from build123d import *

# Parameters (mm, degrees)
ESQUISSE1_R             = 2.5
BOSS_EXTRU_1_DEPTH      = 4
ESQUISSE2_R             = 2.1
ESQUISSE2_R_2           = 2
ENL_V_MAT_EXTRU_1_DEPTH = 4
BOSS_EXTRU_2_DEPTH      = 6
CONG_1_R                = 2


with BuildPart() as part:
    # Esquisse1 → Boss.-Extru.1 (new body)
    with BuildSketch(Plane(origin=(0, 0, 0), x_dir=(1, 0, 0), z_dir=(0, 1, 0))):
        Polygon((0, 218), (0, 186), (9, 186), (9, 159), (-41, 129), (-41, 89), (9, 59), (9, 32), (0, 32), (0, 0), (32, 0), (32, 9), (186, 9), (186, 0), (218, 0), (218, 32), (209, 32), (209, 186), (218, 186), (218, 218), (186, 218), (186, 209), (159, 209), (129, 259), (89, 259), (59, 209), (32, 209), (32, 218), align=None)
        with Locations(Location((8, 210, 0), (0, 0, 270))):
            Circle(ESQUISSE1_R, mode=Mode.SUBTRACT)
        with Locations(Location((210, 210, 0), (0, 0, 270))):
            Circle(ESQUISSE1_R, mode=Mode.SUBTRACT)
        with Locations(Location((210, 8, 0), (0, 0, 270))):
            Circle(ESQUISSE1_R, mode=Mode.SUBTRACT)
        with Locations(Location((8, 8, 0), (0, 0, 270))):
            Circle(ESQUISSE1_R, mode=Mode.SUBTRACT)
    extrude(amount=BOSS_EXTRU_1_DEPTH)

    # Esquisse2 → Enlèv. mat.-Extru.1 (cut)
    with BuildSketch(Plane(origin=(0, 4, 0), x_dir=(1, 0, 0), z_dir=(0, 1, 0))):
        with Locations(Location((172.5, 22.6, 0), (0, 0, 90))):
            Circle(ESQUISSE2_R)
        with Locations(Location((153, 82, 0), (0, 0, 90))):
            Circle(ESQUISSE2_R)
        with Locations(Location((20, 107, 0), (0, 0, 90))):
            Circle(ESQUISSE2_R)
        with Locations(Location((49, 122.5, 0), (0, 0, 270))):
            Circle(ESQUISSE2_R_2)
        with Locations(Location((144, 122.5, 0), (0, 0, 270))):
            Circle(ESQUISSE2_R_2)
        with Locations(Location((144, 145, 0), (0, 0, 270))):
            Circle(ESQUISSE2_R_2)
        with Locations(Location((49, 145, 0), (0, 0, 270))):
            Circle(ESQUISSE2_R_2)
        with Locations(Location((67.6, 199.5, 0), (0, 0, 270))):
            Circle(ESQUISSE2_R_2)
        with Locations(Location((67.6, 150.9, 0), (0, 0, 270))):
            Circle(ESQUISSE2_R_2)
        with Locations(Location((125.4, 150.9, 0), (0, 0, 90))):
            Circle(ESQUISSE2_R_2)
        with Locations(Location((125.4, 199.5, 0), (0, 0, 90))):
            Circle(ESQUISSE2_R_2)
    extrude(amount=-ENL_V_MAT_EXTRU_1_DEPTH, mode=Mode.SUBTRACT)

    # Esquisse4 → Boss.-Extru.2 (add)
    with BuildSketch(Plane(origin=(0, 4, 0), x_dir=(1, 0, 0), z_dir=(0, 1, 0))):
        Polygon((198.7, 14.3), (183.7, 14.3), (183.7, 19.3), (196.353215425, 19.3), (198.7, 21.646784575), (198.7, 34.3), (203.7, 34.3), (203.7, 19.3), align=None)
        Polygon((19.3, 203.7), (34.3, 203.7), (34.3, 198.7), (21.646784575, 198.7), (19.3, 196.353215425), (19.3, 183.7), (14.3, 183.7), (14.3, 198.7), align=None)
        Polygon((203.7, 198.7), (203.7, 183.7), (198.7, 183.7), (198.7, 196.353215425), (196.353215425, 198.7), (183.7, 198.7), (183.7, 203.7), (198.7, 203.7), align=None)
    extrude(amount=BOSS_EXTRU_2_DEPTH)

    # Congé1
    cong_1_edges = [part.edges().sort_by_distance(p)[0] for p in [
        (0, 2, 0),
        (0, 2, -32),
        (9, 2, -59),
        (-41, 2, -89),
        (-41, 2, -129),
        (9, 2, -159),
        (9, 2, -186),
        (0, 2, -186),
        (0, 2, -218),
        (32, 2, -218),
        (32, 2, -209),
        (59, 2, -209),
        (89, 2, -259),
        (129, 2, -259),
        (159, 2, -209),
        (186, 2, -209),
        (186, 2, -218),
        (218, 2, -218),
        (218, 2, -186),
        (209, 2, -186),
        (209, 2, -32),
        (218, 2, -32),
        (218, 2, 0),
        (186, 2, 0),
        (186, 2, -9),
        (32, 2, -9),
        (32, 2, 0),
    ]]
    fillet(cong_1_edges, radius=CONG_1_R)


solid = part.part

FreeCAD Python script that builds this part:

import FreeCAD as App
import Part
import Sketcher


def edges_at(feature, points):
    """Names of the edges that pass closest to the given points."""
    edges = feature.Shape.Edges
    near = lambda p: min(range(len(edges)), key=lambda i: edges[i].distToShape(Part.Vertex(*p))[0])
    return sorted({f"Edge{near(p) + 1}" for p in points})

doc = App.newDocument("Part")
body = doc.addObject("PartDesign::Body", "Body")

sketch1 = doc.addObject("Sketcher::SketchObject", "Sketch")
body.addObject(sketch1)
sketch1.AttachmentSupport = (doc.XZ_Plane, [""])
sketch1.MapMode = "FlatFace"
sketch1.addGeometry(Part.LineSegment(App.Vector(0, -218, 0), App.Vector(0, -186, 0)), False)
sketch1.addGeometry(Part.LineSegment(App.Vector(0, -186, 0), App.Vector(9, -186, 0)), False)
sketch1.addGeometry(Part.LineSegment(App.Vector(9, -186, 0), App.Vector(9, -159, 0)), False)
sketch1.addGeometry(Part.LineSegment(App.Vector(9, -159, 0), App.Vector(-41, -129, 0)), False)
sketch1.addGeometry(Part.LineSegment(App.Vector(-41, -129, 0), App.Vector(-41, -89, 0)), False)
sketch1.addGeometry(Part.LineSegment(App.Vector(-41, -89, 0), App.Vector(9, -59, 0)), False)
sketch1.addGeometry(Part.LineSegment(App.Vector(9, -59, 0), App.Vector(9, -32, 0)), False)
sketch1.addGeometry(Part.LineSegment(App.Vector(9, -32, 0), App.Vector(0, -32, 0)), False)
sketch1.addGeometry(Part.LineSegment(App.Vector(0, -32, 0), App.Vector(0, 0, 0)), False)
sketch1.addGeometry(Part.LineSegment(App.Vector(0, 0, 0), App.Vector(32, 0, 0)), False)
sketch1.addGeometry(Part.LineSegment(App.Vector(32, 0, 0), App.Vector(32, -9, 0)), False)
sketch1.addGeometry(Part.LineSegment(App.Vector(32, -9, 0), App.Vector(186, -9, 0)), False)
sketch1.addGeometry(Part.LineSegment(App.Vector(186, -9, 0), App.Vector(186, 0, 0)), False)
sketch1.addGeometry(Part.LineSegment(App.Vector(186, 0, 0), App.Vector(218, 0, 0)), False)
sketch1.addGeometry(Part.LineSegment(App.Vector(218, 0, 0), App.Vector(218, -32, 0)), False)
sketch1.addGeometry(Part.LineSegment(App.Vector(218, -32, 0), App.Vector(209, -32, 0)), False)
sketch1.addGeometry(Part.LineSegment(App.Vector(209, -32, 0), App.Vector(209, -186, 0)), False)
sketch1.addGeometry(Part.LineSegment(App.Vector(209, -186, 0), App.Vector(218, -186, 0)), False)
sketch1.addGeometry(Part.LineSegment(App.Vector(218, -186, 0), App.Vector(218, -218, 0)), False)
sketch1.addGeometry(Part.LineSegment(App.Vector(218, -218, 0), App.Vector(186, -218, 0)), False)
sketch1.addGeometry(Part.LineSegment(App.Vector(186, -218, 0), App.Vector(186, -209, 0)), False)
sketch1.addGeometry(Part.LineSegment(App.Vector(186, -209, 0), App.Vector(159, -209, 0)), False)
sketch1.addGeometry(Part.LineSegment(App.Vector(159, -209, 0), App.Vector(129, -259, 0)), False)
sketch1.addGeometry(Part.LineSegment(App.Vector(129, -259, 0), App.Vector(89, -259, 0)), False)
sketch1.addGeometry(Part.LineSegment(App.Vector(89, -259, 0), App.Vector(59, -209, 0)), False)
sketch1.addGeometry(Part.LineSegment(App.Vector(59, -209, 0), App.Vector(32, -209, 0)), False)
sketch1.addGeometry(Part.LineSegment(App.Vector(32, -209, 0), App.Vector(32, -218, 0)), False)
sketch1.addGeometry(Part.LineSegment(App.Vector(32, -218, 0), App.Vector(0, -218, 0)), False)
sketch1.addGeometry(Part.Circle(App.Vector(8, -8, 0), App.Vector(0, 0, 1), 2.5), False)
sketch1.addGeometry(Part.Circle(App.Vector(210, -8, 0), App.Vector(0, 0, 1), 2.5), False)
sketch1.addGeometry(Part.Circle(App.Vector(8, -210, 0), App.Vector(0, 0, 1), 2.5), False)
sketch1.addGeometry(Part.Circle(App.Vector(210, -210, 0), App.Vector(0, 0, 1), 2.5), False)
sketch1.addConstraint(Sketcher.Constraint("Coincident", 0, 2, 1, 1))
sketch1.addConstraint(Sketcher.Constraint("Coincident", 1, 2, 2, 1))
sketch1.addConstraint(Sketcher.Constraint("Coincident", 2, 2, 3, 1))
sketch1.addConstraint(Sketcher.Constraint("Coincident", 3, 2, 4, 1))
sketch1.addConstraint(Sketcher.Constraint("Coincident", 4, 2, 5, 1))
sketch1.addConstraint(Sketcher.Constraint("Coincident", 5, 2, 6, 1))
sketch1.addConstraint(Sketcher.Constraint("Coincident", 6, 2, 7, 1))
sketch1.addConstraint(Sketcher.Constraint("Coincident", 7, 2, 8, 1))
sketch1.addConstraint(Sketcher.Constraint("Coincident", 8, 2, 9, 1))
sketch1.addConstraint(Sketcher.Constraint("Coincident", 9, 2, 10, 1))
sketch1.addConstraint(Sketcher.Constraint("Coincident", 10, 2, 11, 1))
sketch1.addConstraint(Sketcher.Constraint("Coincident", 11, 2, 12, 1))
sketch1.addConstraint(Sketcher.Constraint("Coincident", 12, 2, 13, 1))
sketch1.addConstraint(Sketcher.Constraint("Coincident", 13, 2, 14, 1))
sketch1.addConstraint(Sketcher.Constraint("Coincident", 14, 2, 15, 1))
sketch1.addConstraint(Sketcher.Constraint("Coincident", 15, 2, 16, 1))
sketch1.addConstraint(Sketcher.Constraint("Coincident", 16, 2, 17, 1))
sketch1.addConstraint(Sketcher.Constraint("Coincident", 17, 2, 18, 1))
sketch1.addConstraint(Sketcher.Constraint("Coincident", 18, 2, 19, 1))
sketch1.addConstraint(Sketcher.Constraint("Coincident", 19, 2, 20, 1))
sketch1.addConstraint(Sketcher.Constraint("Coincident", 20, 2, 21, 1))
sketch1.addConstraint(Sketcher.Constraint("Coincident", 21, 2, 22, 1))
sketch1.addConstraint(Sketcher.Constraint("Coincident", 22, 2, 23, 1))
sketch1.addConstraint(Sketcher.Constraint("Coincident", 23, 2, 24, 1))
sketch1.addConstraint(Sketcher.Constraint("Coincident", 24, 2, 25, 1))
sketch1.addConstraint(Sketcher.Constraint("Coincident", 25, 2, 26, 1))
sketch1.addConstraint(Sketcher.Constraint("Coincident", 26, 2, 27, 1))
sketch1.addConstraint(Sketcher.Constraint("Coincident", 27, 2, 0, 1))
sketch1.addConstraint(Sketcher.Constraint("Vertical", 0))
sketch1.addConstraint(Sketcher.Constraint("Horizontal", 1))
sketch1.addConstraint(Sketcher.Constraint("Vertical", 2))
sketch1.addConstraint(Sketcher.Constraint("Vertical", 4))
sketch1.addConstraint(Sketcher.Constraint("Vertical", 6))
sketch1.addConstraint(Sketcher.Constraint("Horizontal", 7))
sketch1.addConstraint(Sketcher.Constraint("Vertical", 8))
sketch1.addConstraint(Sketcher.Constraint("Horizontal", 9))
sketch1.addConstraint(Sketcher.Constraint("Vertical", 10))
sketch1.addConstraint(Sketcher.Constraint("Horizontal", 11))
sketch1.addConstraint(Sketcher.Constraint("Vertical", 12))
sketch1.addConstraint(Sketcher.Constraint("Horizontal", 13))
sketch1.addConstraint(Sketcher.Constraint("Vertical", 14))
sketch1.addConstraint(Sketcher.Constraint("Horizontal", 15))
sketch1.addConstraint(Sketcher.Constraint("Vertical", 16))
sketch1.addConstraint(Sketcher.Constraint("Horizontal", 17))
sketch1.addConstraint(Sketcher.Constraint("Vertical", 18))
sketch1.addConstraint(Sketcher.Constraint("Horizontal", 19))
sketch1.addConstraint(Sketcher.Constraint("Vertical", 20))
sketch1.addConstraint(Sketcher.Constraint("Horizontal", 21))
sketch1.addConstraint(Sketcher.Constraint("Horizontal", 23))
sketch1.addConstraint(Sketcher.Constraint("Horizontal", 25))
sketch1.addConstraint(Sketcher.Constraint("Vertical", 26))
sketch1.addConstraint(Sketcher.Constraint("Horizontal", 27))
sketch1.addConstraint(Sketcher.Constraint("Coincident", 8, 2, -1, 1))
sketch1.addConstraint(Sketcher.Constraint("Equal", 28, 29))
sketch1.addConstraint(Sketcher.Constraint("Equal", 29, 30))
sketch1.addConstraint(Sketcher.Constraint("Equal", 30, 31))
sketch1.addConstraint(Sketcher.Constraint("PointOnObject", 0, 2, -2))
sketch1.addConstraint(Sketcher.Constraint("PointOnObject", 12, 2, -1))
sketch1.addConstraint(Sketcher.Constraint("Perpendicular", 3, 22))
sketch1.addConstraint(Sketcher.Constraint("Perpendicular", 5, 24))
sketch1.addConstraint(Sketcher.Constraint("Horizontal", 28, 3, 29, 3))
sketch1.addConstraint(Sketcher.Constraint("Horizontal", 30, 3, 31, 3))
sketch1.addConstraint(Sketcher.Constraint("Horizontal", 7, 2, 14, 2))
sketch1.addConstraint(Sketcher.Constraint("Horizontal", 1, 2, 16, 2))
sketch1.addConstraint(Sketcher.Constraint("Horizontal", 21, 2, 24, 2))
sketch1.addConstraint(Sketcher.Constraint("Horizontal", 19, 2, 26, 2))
sketch1.addConstraint(Sketcher.Constraint("Vertical", 28, 3, 30, 3))
sketch1.addConstraint(Sketcher.Constraint("Vertical", 29, 3, 31, 3))
sketch1.addConstraint(Sketcher.Constraint("Vertical", 2, 2, 5, 2))
sketch1.addConstraint(Sketcher.Constraint("Vertical", 14, 2, 17, 2))
sketch1.addConstraint(Sketcher.Constraint("Vertical", 12, 2, 19, 2))
sketch1.addConstraint(Sketcher.Constraint("Vertical", 10, 2, 25, 2))
sketch1.addConstraint(Sketcher.Constraint("Equal", 9, 13))
sketch1.addConstraint(Sketcher.Constraint("Equal", 7, 15))
sketch1.addConstraint(Sketcher.Constraint("Equal", 21, 25))
sketch1.addConstraint(Sketcher.Constraint("Equal", 27, 0))
sketch1.addConstraint(Sketcher.Constraint("Equal", 25, 2))
sketch1.addConstraint(Sketcher.Constraint("Equal", 23, 4))
sketch1.addConstraint(Sketcher.Constraint("Equal", 2, 6))
sketch1.addConstraint(Sketcher.Constraint("Equal", 0, 8))
sketch1.addConstraint(Sketcher.Constraint("Equal", 17, 10))
sketch1.addConstraint(Sketcher.Constraint("Equal", 11, 16))
sketch1.addConstraint(Sketcher.Constraint("Equal", 12, 20))
sketch1.addConstraint(Sketcher.Constraint("Equal", 3, 5))
sketch1.addConstraint(Sketcher.Constraint("Diameter", 28, 5.0))
sketch1.addConstraint(Sketcher.Constraint("DistanceX", 1, 1, 1, 2, 9.0))
sketch1.addConstraint(Sketcher.Constraint("DistanceX", 9, 1, 9, 2, 32.0))
sketch1.addConstraint(Sketcher.Constraint("DistanceX", 11, 1, 11, 2, 154.0))
sketch1.addConstraint(Sketcher.Constraint("DistanceX", 21, 2, 21, 1, 27.0))
sketch1.addConstraint(Sketcher.Constraint("DistanceX", 23, 2, 23, 1, 40.0))
sketch1.addConstraint(Sketcher.Constraint("DistanceX", -1, 1, 28, 3, 8.0))
sketch1.addConstraint(Sketcher.Constraint("DistanceY", 28, 3, -1, 1, 8.0))
sketch1.addConstraint(Sketcher.Constraint("DistanceX", -1, 1, 29, 3, 210.0))
sketch1.addConstraint(Sketcher.Constraint("DistanceY", 30, 3, -1, 1, 210.0))
sketch1.addConstraint(Sketcher.Constraint("DistanceX", 3, 2, -1, 1, 41.0))
pad1 = doc.addObject("PartDesign::Pad", "Pad")
body.addObject(pad1)
pad1.Profile = sketch1
pad1.Length = 4
pad1.Reversed = True

sketch2 = doc.addObject("Sketcher::SketchObject", "Sketch001")
body.addObject(sketch2)
sketch2.AttachmentSupport = (doc.XZ_Plane, [""])
sketch2.MapMode = "FlatFace"
sketch2.AttachmentOffset = App.Placement(App.Vector(0, 0, -4), App.Rotation())
sketch2.addGeometry(Part.Circle(App.Vector(172.5, -22.6, 0), App.Vector(0, 0, 1), 2.1), False)
sketch2.addGeometry(Part.Circle(App.Vector(153, -82, 0), App.Vector(0, 0, 1), 2.1), False)
sketch2.addGeometry(Part.Circle(App.Vector(20, -107, 0), App.Vector(0, 0, 1), 2.1), False)
sketch2.addGeometry(Part.Circle(App.Vector(49, -122.5, 0), App.Vector(0, 0, 1), 2), False)
sketch2.addGeometry(Part.Circle(App.Vector(144, -122.5, 0), App.Vector(0, 0, 1), 2), False)
sketch2.addGeometry(Part.Circle(App.Vector(144, -145, 0), App.Vector(0, 0, 1), 2), False)
sketch2.addGeometry(Part.Circle(App.Vector(49, -145, 0), App.Vector(0, 0, 1), 2), False)
sketch2.addGeometry(Part.Circle(App.Vector(67.6, -199.5, 0), App.Vector(0, 0, 1), 2), False)
sketch2.addGeometry(Part.Circle(App.Vector(67.6, -150.9, 0), App.Vector(0, 0, 1), 2), False)
sketch2.addGeometry(Part.Circle(App.Vector(125.4, -150.9, 0), App.Vector(0, 0, 1), 2), False)
sketch2.addGeometry(Part.Circle(App.Vector(125.4, -199.5, 0), App.Vector(0, 0, 1), 2), False)
sketch2.addConstraint(Sketcher.Constraint("Equal", 0, 1))
sketch2.addConstraint(Sketcher.Constraint("Equal", 1, 2))
sketch2.addConstraint(Sketcher.Constraint("Equal", 3, 4))
sketch2.addConstraint(Sketcher.Constraint("Equal", 4, 5))
sketch2.addConstraint(Sketcher.Constraint("Equal", 5, 6))
sketch2.addConstraint(Sketcher.Constraint("Equal", 6, 7))
sketch2.addConstraint(Sketcher.Constraint("Equal", 7, 8))
sketch2.addConstraint(Sketcher.Constraint("Equal", 8, 9))
sketch2.addConstraint(Sketcher.Constraint("Equal", 9, 10))
sketch2.addConstraint(Sketcher.Constraint("Horizontal", 3, 3, 4, 3))
sketch2.addConstraint(Sketcher.Constraint("Horizontal", 5, 3, 6, 3))
sketch2.addConstraint(Sketcher.Constraint("Horizontal", 8, 3, 9, 3))
sketch2.addConstraint(Sketcher.Constraint("Horizontal", 7, 3, 10, 3))
sketch2.addConstraint(Sketcher.Constraint("Vertical", 4, 3, 5, 3))
sketch2.addConstraint(Sketcher.Constraint("Vertical", 3, 3, 6, 3))
sketch2.addConstraint(Sketcher.Constraint("Vertical", 7, 3, 8, 3))
sketch2.addConstraint(Sketcher.Constraint("Vertical", 9, 3, 10, 3))
sketch2.addConstraint(Sketcher.Constraint("Diameter", 3, 4.0))
sketch2.addConstraint(Sketcher.Constraint("Diameter", 0, 4.2))
sketch2.addConstraint(Sketcher.Constraint("DistanceX", -1, 1, 1, 3, 153.0))
sketch2.addConstraint(Sketcher.Constraint("DistanceY", 1, 3, -1, 1, 82.0))
sketch2.addConstraint(Sketcher.Constraint("DistanceX", -1, 1, 2, 3, 20.0))
sketch2.addConstraint(Sketcher.Constraint("DistanceY", 2, 3, -1, 1, 107.0))
sketch2.addConstraint(Sketcher.Constraint("DistanceX", -1, 1, 3, 3, 49.0))
sketch2.addConstraint(Sketcher.Constraint("DistanceX", -1, 1, 4, 3, 144.0))
sketch2.addConstraint(Sketcher.Constraint("DistanceY", 5, 3, -1, 1, 145.0))
sketch2.addConstraint(Sketcher.Constraint("DistanceY", 7, 3, 3, 3, 77.0))
sketch2.addConstraint(Sketcher.Constraint("DistanceX", -1, 1, 0, 3, 172.5))
sketch2.addConstraint(Sketcher.Constraint("DistanceY", 0, 3, -1, 1, 22.6))
sketch2.addConstraint(Sketcher.Constraint("DistanceY", 3, 3, -1, 1, 122.5))
sketch2.addConstraint(Sketcher.Constraint("DistanceX", -1, 1, 7, 3, 67.6))
sketch2.addConstraint(Sketcher.Constraint("DistanceY", 8, 3, -1, 1, 150.9))
sketch2.addConstraint(Sketcher.Constraint("DistanceX", -1, 1, 9, 3, 125.4))
pocket1 = doc.addObject("PartDesign::Pocket", "Pocket")
body.addObject(pocket1)
pocket1.Profile = sketch2
pocket1.Length = 4
pocket1.Reversed = True

sketch3 = doc.addObject("Sketcher::SketchObject", "Sketch002")
body.addObject(sketch3)
sketch3.AttachmentSupport = (doc.XZ_Plane, [""])
sketch3.MapMode = "FlatFace"
sketch3.AttachmentOffset = App.Placement(App.Vector(0, 0, -4), App.Rotation())
sketch3.addGeometry(Part.LineSegment(App.Vector(183.7, -14.3, 0), App.Vector(198.7, -14.3, 0)), False)
sketch3.addGeometry(Part.LineSegment(App.Vector(198.7, -14.3, 0), App.Vector(203.7, -19.3, 0)), False)
sketch3.addGeometry(Part.LineSegment(App.Vector(203.7, -19.3, 0), App.Vector(203.7, -34.3, 0)), False)
sketch3.addGeometry(Part.LineSegment(App.Vector(203.7, -34.3, 0), App.Vector(198.7, -34.3, 0)), False)
sketch3.addGeometry(Part.LineSegment(App.Vector(198.7, -34.3, 0), App.Vector(198.7, -21.6, 0)), False)
sketch3.addGeometry(Part.LineSegment(App.Vector(198.7, -21.6, 0), App.Vector(196.4, -19.3, 0)), False)
sketch3.addGeometry(Part.LineSegment(App.Vector(196.4, -19.3, 0), App.Vector(183.7, -19.3, 0)), False)
sketch3.addGeometry(Part.LineSegment(App.Vector(183.7, -19.3, 0), App.Vector(183.7, -14.3, 0)), False)
sketch3.addGeometry(Part.LineSegment(App.Vector(34.3, -203.7, 0), App.Vector(19.3, -203.7, 0)), False)
sketch3.addGeometry(Part.LineSegment(App.Vector(19.3, -203.7, 0), App.Vector(14.3, -198.7, 0)), False)
sketch3.addGeometry(Part.LineSegment(App.Vector(14.3, -198.7, 0), App.Vector(14.3, -183.7, 0)), False)
sketch3.addGeometry(Part.LineSegment(App.Vector(14.3, -183.7, 0), App.Vector(19.3, -183.7, 0)), False)
sketch3.addGeometry(Part.LineSegment(App.Vector(19.3, -183.7, 0), App.Vector(19.3, -196.4, 0)), False)
sketch3.addGeometry(Part.LineSegment(App.Vector(19.3, -196.4, 0), App.Vector(21.6, -198.7, 0)), False)
sketch3.addGeometry(Part.LineSegment(App.Vector(21.6, -198.7, 0), App.Vector(34.3, -198.7, 0)), False)
sketch3.addGeometry(Part.LineSegment(App.Vector(34.3, -198.7, 0), App.Vector(34.3, -203.7, 0)), False)
sketch3.addGeometry(Part.LineSegment(App.Vector(203.7, -183.7, 0), App.Vector(203.7, -198.7, 0)), False)
sketch3.addGeometry(Part.LineSegment(App.Vector(203.7, -198.7, 0), App.Vector(198.7, -203.7, 0)), False)
sketch3.addGeometry(Part.LineSegment(App.Vector(198.7, -203.7, 0), App.Vector(183.7, -203.7, 0)), False)
sketch3.addGeometry(Part.LineSegment(App.Vector(183.7, -203.7, 0), App.Vector(183.7, -198.7, 0)), False)
sketch3.addGeometry(Part.LineSegment(App.Vector(183.7, -198.7, 0), App.Vector(196.4, -198.7, 0)), False)
sketch3.addGeometry(Part.LineSegment(App.Vector(196.4, -198.7, 0), App.Vector(198.7, -196.4, 0)), False)
sketch3.addGeometry(Part.LineSegment(App.Vector(198.7, -196.4, 0), App.Vector(198.7, -183.7, 0)), False)
sketch3.addGeometry(Part.LineSegment(App.Vector(198.7, -183.7, 0), App.Vector(203.7, -183.7, 0)), False)
sketch3.addConstraint(Sketcher.Constraint("Coincident", 0, 2, 1, 1))
sketch3.addConstraint(Sketcher.Constraint("Coincident", 1, 2, 2, 1))
sketch3.addConstraint(Sketcher.Constraint("Coincident", 2, 2, 3, 1))
sketch3.addConstraint(Sketcher.Constraint("Coincident", 3, 2, 4, 1))
sketch3.addConstraint(Sketcher.Constraint("Coincident", 4, 2, 5, 1))
sketch3.addConstraint(Sketcher.Constraint("Coincident", 5, 2, 6, 1))
sketch3.addConstraint(Sketcher.Constraint("Coincident", 6, 2, 7, 1))
sketch3.addConstraint(Sketcher.Constraint("Coincident", 7, 2, 0, 1))
sketch3.addConstraint(Sketcher.Constraint("Coincident", 8, 2, 9, 1))
sketch3.addConstraint(Sketcher.Constraint("Coincident", 9, 2, 10, 1))
sketch3.addConstraint(Sketcher.Constraint("Coincident", 10, 2, 11, 1))
sketch3.addConstraint(Sketcher.Constraint("Coincident", 11, 2, 12, 1))
sketch3.addConstraint(Sketcher.Constraint("Coincident", 12, 2, 13, 1))
sketch3.addConstraint(Sketcher.Constraint("Coincident", 13, 2, 14, 1))
sketch3.addConstraint(Sketcher.Constraint("Coincident", 14, 2, 15, 1))
sketch3.addConstraint(Sketcher.Constraint("Coincident", 15, 2, 8, 1))
sketch3.addConstraint(Sketcher.Constraint("Coincident", 16, 2, 17, 1))
sketch3.addConstraint(Sketcher.Constraint("Coincident", 17, 2, 18, 1))
sketch3.addConstraint(Sketcher.Constraint("Coincident", 18, 2, 19, 1))
sketch3.addConstraint(Sketcher.Constraint("Coincident", 19, 2, 20, 1))
sketch3.addConstraint(Sketcher.Constraint("Coincident", 20, 2, 21, 1))
sketch3.addConstraint(Sketcher.Constraint("Coincident", 21, 2, 22, 1))
sketch3.addConstraint(Sketcher.Constraint("Coincident", 22, 2, 23, 1))
sketch3.addConstraint(Sketcher.Constraint("Coincident", 23, 2, 16, 1))
sketch3.addConstraint(Sketcher.Constraint("Horizontal", 0))
sketch3.addConstraint(Sketcher.Constraint("Vertical", 2))
sketch3.addConstraint(Sketcher.Constraint("Horizontal", 3))
sketch3.addConstraint(Sketcher.Constraint("Vertical", 4))
sketch3.addConstraint(Sketcher.Constraint("Horizontal", 6))
sketch3.addConstraint(Sketcher.Constraint("Vertical", 7))
sketch3.addConstraint(Sketcher.Constraint("Horizontal", 8))
sketch3.addConstraint(Sketcher.Constraint("Vertical", 10))
sketch3.addConstraint(Sketcher.Constraint("Horizontal", 11))
sketch3.addConstraint(Sketcher.Constraint("Vertical", 12))
sketch3.addConstraint(Sketcher.Constraint("Horizontal", 14))
sketch3.addConstraint(Sketcher.Constraint("Vertical", 15))
sketch3.addConstraint(Sketcher.Constraint("Vertical", 16))
sketch3.addConstraint(Sketcher.Constraint("Horizontal", 18))
sketch3.addConstraint(Sketcher.Constraint("Vertical", 19))
sketch3.addConstraint(Sketcher.Constraint("Horizontal", 20))
sketch3.addConstraint(Sketcher.Constraint("Vertical", 22))
sketch3.addConstraint(Sketcher.Constraint("Horizontal", 23))
sketch3.addConstraint(Sketcher.Constraint("Parallel", 1, 5))
sketch3.addConstraint(Sketcher.Constraint("Parallel", 5, 9))
sketch3.addConstraint(Sketcher.Constraint("Parallel", 9, 13))
sketch3.addConstraint(Sketcher.Constraint("Perpendicular", 13, 17))
sketch3.addConstraint(Sketcher.Constraint("Parallel", 17, 21))
sketch3.addConstraint(Sketcher.Constraint("Horizontal", 1, 2, 5, 2))
sketch3.addConstraint(Sketcher.Constraint("Horizontal", 9, 2, 13, 2))
sketch3.addConstraint(Sketcher.Constraint("Horizontal", 14, 2, 16, 2))
sketch3.addConstraint(Sketcher.Constraint("Horizontal", 15, 2, 17, 2))
sketch3.addConstraint(Sketcher.Constraint("Horizontal", 16, 2, 19, 2))
sketch3.addConstraint(Sketcher.Constraint("Horizontal", 12, 2, 21, 2))
sketch3.addConstraint(Sketcher.Constraint("Horizontal", 11, 2, 22, 2))
sketch3.addConstraint(Sketcher.Constraint("Vertical", 0, 2, 3, 2))
sketch3.addConstraint(Sketcher.Constraint("Vertical", 8, 2, 11, 2))
sketch3.addConstraint(Sketcher.Constraint("Vertical", 2, 2, 16, 2))
sketch3.addConstraint(Sketcher.Constraint("Vertical", 4, 2, 17, 2))
sketch3.addConstraint(Sketcher.Constraint("Vertical", 7, 2, 18, 2))
sketch3.addConstraint(Sketcher.Constraint("Vertical", 5, 2, 20, 2))
sketch3.addConstraint(Sketcher.Constraint("Vertical", 17, 2, 21, 2))
sketch3.addConstraint(Sketcher.Constraint("Equal", 0, 8))
sketch3.addConstraint(Sketcher.Constraint("Equal", 3, 11))
sketch3.addConstraint(Sketcher.Constraint("Equal", 18, 2))
sketch3.addConstraint(Sketcher.Constraint("Equal", 2, 10))
sketch3.addConstraint(Sketcher.Constraint("DistanceX", 0, 1, 0, 2, 15.0))
sketch3.addConstraint(Sketcher.Constraint("DistanceX", 3, 2, 3, 1, 5.0))
sketch3.addConstraint(Sketcher.Constraint("DistanceX", -1, 1, 0, 2, 198.7))
sketch3.addConstraint(Sketcher.Constraint("DistanceY", 0, 2, -1, 1, 14.3))
sketch3.addConstraint(Sketcher.Constraint("DistanceX", -1, 1, 8, 2, 19.3))
sketch3.addConstraint(Sketcher.Constraint("DistanceY", 8, 2, -1, 1, 203.7))
sketch3.addConstraint(Sketcher.Constraint("DistanceX", 6, 2, 6, 1, 12.653215))
pad2 = doc.addObject("PartDesign::Pad", "Pad001")
body.addObject(pad2)
pad2.Profile = sketch3
pad2.Length = 6
pad2.Reversed = True
doc.recompute()

fillet = doc.addObject("PartDesign::Fillet", "Fillet")
body.addObject(fillet)
fillet.Base = (pad2, edges_at(pad2, [
    (0, 2, 0),
    (0, 2, -32),
    (9, 2, -59),
    (-41, 2, -89),
    (-41, 2, -129),
    (9, 2, -159),
    (9, 2, -186),
    (0, 2, -186),
    (0, 2, -218),
    (32, 2, -218),
    (32, 2, -209),
    (59, 2, -209),
    (89, 2, -259),
    (129, 2, -259),
    (159, 2, -209),
    (186, 2, -209),
    (186, 2, -218),
    (218, 2, -218),
    (218, 2, -186),
    (209, 2, -186),
    (209, 2, -32),
    (218, 2, -32),
    (218, 2, 0),
    (186, 2, 0),
    (186, 2, -9),
    (32, 2, -9),
    (32, 2, 0),
]))
fillet.Radius = 2

doc.recompute()
